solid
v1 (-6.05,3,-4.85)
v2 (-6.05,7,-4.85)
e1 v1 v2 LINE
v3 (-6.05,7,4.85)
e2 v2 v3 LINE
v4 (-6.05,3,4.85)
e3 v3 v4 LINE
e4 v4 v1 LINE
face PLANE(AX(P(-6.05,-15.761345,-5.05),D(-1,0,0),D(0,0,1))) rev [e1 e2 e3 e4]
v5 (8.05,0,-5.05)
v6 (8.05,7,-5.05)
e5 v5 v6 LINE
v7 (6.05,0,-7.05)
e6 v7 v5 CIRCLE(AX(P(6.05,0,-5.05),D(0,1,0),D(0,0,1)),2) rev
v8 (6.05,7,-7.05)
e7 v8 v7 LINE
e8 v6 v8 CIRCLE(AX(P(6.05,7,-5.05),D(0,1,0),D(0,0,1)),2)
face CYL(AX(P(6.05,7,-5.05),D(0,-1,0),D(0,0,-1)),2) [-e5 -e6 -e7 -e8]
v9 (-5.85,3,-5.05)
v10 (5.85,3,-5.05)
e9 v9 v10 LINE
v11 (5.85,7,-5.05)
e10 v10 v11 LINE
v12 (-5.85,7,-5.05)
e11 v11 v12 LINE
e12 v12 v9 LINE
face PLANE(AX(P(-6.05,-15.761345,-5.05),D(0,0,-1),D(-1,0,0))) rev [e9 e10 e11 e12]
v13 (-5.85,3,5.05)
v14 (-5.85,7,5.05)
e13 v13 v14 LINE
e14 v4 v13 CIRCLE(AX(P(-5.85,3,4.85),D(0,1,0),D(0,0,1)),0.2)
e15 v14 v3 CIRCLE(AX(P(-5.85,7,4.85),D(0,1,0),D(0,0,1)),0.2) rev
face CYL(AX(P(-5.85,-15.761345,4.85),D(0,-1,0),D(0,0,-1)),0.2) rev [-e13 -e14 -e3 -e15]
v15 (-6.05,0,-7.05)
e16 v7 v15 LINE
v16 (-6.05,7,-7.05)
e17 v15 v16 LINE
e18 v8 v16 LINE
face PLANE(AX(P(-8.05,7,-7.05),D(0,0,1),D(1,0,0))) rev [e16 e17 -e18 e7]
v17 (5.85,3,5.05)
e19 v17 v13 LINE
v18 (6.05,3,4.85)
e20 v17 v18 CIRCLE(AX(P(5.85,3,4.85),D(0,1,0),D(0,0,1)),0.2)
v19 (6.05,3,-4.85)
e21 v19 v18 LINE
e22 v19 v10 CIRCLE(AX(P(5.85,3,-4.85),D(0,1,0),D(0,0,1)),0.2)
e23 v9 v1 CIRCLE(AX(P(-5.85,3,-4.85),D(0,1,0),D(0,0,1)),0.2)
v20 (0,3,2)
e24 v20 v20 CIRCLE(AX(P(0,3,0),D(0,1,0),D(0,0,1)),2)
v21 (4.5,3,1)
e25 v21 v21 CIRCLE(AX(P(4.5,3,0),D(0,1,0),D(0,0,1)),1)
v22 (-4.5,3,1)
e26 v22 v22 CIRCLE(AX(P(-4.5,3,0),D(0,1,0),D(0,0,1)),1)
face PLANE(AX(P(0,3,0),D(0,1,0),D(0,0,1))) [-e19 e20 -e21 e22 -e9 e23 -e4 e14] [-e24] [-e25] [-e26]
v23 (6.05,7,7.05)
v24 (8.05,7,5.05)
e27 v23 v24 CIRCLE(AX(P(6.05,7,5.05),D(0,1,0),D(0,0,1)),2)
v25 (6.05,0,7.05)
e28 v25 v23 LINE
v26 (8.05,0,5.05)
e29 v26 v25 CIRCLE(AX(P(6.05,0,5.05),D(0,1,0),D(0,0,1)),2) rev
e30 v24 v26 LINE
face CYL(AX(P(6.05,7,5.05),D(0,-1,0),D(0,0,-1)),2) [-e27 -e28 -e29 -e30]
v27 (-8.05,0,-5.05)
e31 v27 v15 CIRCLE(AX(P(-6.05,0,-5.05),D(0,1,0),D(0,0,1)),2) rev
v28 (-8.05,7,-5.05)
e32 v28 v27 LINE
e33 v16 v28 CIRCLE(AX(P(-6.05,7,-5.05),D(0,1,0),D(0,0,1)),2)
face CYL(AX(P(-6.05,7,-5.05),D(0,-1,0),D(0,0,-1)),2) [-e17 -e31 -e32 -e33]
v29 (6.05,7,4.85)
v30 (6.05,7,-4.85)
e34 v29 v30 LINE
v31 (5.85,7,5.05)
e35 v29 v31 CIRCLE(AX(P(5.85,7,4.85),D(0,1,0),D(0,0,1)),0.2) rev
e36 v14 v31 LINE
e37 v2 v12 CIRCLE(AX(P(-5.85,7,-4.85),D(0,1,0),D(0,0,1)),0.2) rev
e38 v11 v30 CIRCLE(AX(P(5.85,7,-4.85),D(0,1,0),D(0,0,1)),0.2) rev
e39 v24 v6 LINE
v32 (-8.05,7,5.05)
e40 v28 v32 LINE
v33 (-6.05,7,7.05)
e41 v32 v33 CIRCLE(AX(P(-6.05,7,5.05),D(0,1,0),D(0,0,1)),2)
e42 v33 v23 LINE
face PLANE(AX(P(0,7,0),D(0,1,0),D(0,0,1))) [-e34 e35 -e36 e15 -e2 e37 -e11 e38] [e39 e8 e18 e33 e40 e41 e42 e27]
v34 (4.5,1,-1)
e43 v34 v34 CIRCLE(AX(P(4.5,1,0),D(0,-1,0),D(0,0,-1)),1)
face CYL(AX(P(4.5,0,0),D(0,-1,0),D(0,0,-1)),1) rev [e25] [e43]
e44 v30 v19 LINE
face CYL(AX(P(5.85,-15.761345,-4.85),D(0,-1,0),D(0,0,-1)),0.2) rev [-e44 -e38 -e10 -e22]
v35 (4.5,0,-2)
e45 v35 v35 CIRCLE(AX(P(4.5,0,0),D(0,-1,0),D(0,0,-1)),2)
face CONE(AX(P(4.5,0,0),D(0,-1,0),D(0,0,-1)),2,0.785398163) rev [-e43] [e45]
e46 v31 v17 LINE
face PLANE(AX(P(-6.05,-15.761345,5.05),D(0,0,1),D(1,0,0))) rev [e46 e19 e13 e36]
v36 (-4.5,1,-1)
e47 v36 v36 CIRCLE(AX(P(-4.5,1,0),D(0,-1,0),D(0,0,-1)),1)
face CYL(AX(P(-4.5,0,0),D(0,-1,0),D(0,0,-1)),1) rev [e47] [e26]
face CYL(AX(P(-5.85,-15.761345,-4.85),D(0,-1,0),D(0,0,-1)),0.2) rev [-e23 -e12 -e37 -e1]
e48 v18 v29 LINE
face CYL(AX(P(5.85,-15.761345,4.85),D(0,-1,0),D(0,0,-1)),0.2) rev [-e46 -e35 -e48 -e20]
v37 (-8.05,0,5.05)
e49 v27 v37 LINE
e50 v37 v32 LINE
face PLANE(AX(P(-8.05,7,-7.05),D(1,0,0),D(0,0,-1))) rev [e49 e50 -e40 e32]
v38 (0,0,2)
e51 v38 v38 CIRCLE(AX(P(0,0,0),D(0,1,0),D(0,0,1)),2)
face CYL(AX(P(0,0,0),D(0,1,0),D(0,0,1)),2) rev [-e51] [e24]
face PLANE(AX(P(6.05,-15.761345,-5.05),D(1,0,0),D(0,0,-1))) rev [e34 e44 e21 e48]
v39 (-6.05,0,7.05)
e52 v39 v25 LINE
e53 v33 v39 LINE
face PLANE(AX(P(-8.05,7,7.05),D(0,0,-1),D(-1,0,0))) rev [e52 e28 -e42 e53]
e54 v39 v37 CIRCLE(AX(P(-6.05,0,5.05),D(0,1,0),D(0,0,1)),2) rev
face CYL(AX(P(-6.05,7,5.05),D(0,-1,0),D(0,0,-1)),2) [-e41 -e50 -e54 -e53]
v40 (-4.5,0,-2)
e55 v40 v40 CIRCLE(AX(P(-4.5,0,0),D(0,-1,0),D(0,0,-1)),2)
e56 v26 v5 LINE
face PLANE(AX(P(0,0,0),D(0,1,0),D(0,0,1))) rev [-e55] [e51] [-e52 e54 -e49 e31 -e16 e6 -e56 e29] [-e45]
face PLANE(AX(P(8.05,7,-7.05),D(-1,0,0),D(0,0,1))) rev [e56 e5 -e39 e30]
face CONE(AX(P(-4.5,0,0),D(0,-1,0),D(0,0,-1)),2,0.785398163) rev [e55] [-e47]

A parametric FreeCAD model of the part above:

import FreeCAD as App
import Part
import Sketcher

V = App.Vector


def edges_at(feature, points):
    """Names of the edges that pass closest to the given points."""
    edges = feature.Shape.Edges
    near = lambda p: min(range(len(edges)), key=lambda i: edges[i].distToShape(Part.Vertex(*p))[0])
    return sorted({f"Edge{near(p) + 1}" for p in points})

doc = App.newDocument("Part")
params = doc.addObject("Spreadsheet::Sheet", "Params")
for row, (alias, value) in enumerate([
    ("sketch1_width", "16.1 mm"),
    ("sketch1_height", "14.1 mm"),
    ("pad1_length", "7 mm"),
    ("sketch2_width", "12.1 mm"),
    ("sketch2_height", "10.1 mm"),
    ("pocket1_length", "4 mm"),
    ("sketch3_diameter", "2 mm"),
    ("hole_diameter", "2 mm"),
    ("hole_depth", "3 mm"),
    ("hole_csink_diameter", "4 mm"),
    ("sketch4_diameter", "4 mm"),
    ("fillet_radius", "2 mm"),
    ("fillet2_radius", "0.2 mm"),
], start=1):
    params.set(f"A{row}", alias)
    params.set(f"B{row}", "=" + value)
    params.setAlias(f"B{row}", alias)

body = doc.addObject("PartDesign::Body", "Body")

sketch1 = body.newObject("Sketcher::SketchObject", "Sketch")
sketch1.AttachmentSupport = (doc.getObject("XZ_Plane"), [""])
sketch1.MapMode = "FlatFace"
sketch1.addGeometry([
    Part.LineSegment(V(-8.05, -7.05, 0), V(-8.05, 7.05, 0)),
    Part.LineSegment(V(-8.05, 7.05, 0), V(8.05, 7.05, 0)),
    Part.LineSegment(V(8.05, 7.05, 0), V(8.05, -7.05, 0)),
    Part.LineSegment(V(8.05, -7.05, 0), V(-8.05, -7.05, 0)),
], False)
sketch1.addConstraint([
    Sketcher.Constraint("Coincident", 0, 2, 1, 1),
    Sketcher.Constraint("Coincident", 1, 2, 2, 1),
    Sketcher.Constraint("Coincident", 2, 2, 3, 1),
    Sketcher.Constraint("Coincident", 3, 2, 0, 1),
    Sketcher.Constraint("Vertical", 0),
    Sketcher.Constraint("Horizontal", 1),
    Sketcher.Constraint("Vertical", 2),
    Sketcher.Constraint("Horizontal", 3),
    Sketcher.Constraint("Symmetric", 0, 2, 2, 2, -1, 1),
    Sketcher.Constraint("DistanceX", 1, 1, 1, 2, 16.1),
    Sketcher.Constraint("DistanceY", 0, 1, 0, 2, 14.1),
])
sketch1.setExpression("Constraints[9]", "Params.sketch1_width")
sketch1.setExpression("Constraints[10]", "Params.sketch1_height")
pad1 = body.newObject("PartDesign::Pad", "Pad")
pad1.Profile = sketch1
pad1.setExpression("Length", "Params.pad1_length")
pad1.Reversed = True

sketch2 = body.newObject("Sketcher::SketchObject", "Sketch001")
sketch2.AttachmentSupport = (doc.getObject("XZ_Plane"), [""])
sketch2.MapMode = "FlatFace"
sketch2.AttachmentOffset = App.Placement(V(0, 0, -7), App.Rotation())
sketch2.addGeometry([
    Part.LineSegment(V(-6.05, -5.05, 0), V(-6.05, 5.05, 0)),
    Part.LineSegment(V(-6.05, 5.05, 0), V(6.05, 5.05, 0)),
    Part.LineSegment(V(6.05, 5.05, 0), V(6.05, -5.05, 0)),
    Part.LineSegment(V(6.05, -5.05, 0), V(-6.05, -5.05, 0)),
], False)
sketch2.addConstraint([
    Sketcher.Constraint("Coincident", 0, 2, 1, 1),
    Sketcher.Constraint("Coincident", 1, 2, 2, 1),
    Sketcher.Constraint("Coincident", 2, 2, 3, 1),
    Sketcher.Constraint("Coincident", 3, 2, 0, 1),
    Sketcher.Constraint("Vertical", 0),
    Sketcher.Constraint("Horizontal", 1),
    Sketcher.Constraint("Vertical", 2),
    Sketcher.Constraint("Horizontal", 3),
    Sketcher.Constraint("Symmetric", 0, 2, 2, 2, -1, 1),
    Sketcher.Constraint("DistanceX", 1, 1, 1, 2, 12.1),
    Sketcher.Constraint("DistanceY", 0, 1, 0, 2, 10.1),
])
sketch2.setExpression("Constraints[9]", "Params.sketch2_width")
sketch2.setExpression("Constraints[10]", "Params.sketch2_height")
pocket1 = body.newObject("PartDesign::Pocket", "Pocket")
pocket1.Profile = sketch2
pocket1.setExpression("Length", "Params.pocket1_length")
pocket1.Reversed = True

sketch3 = body.newObject("Sketcher::SketchObject", "Sketch002")
sketch3.AttachmentSupport = (doc.getObject("XZ_Plane"), [""])
sketch3.MapMode = "FlatFace"
sketch3.addGeometry([
    Part.Circle(V(-4.5, 0, 0), V(0, 0, 1), 1),
    Part.Circle(V(4.5, 0, 0), V(0, 0, 1), 1),
], False)
sketch3.addConstraint([
    Sketcher.Constraint("Equal", 0, 1),
    Sketcher.Constraint("Symmetric", 0, 3, 1, 3, -1, 1),
    Sketcher.Constraint("PointOnObject", 0, 3, -1),
    Sketcher.Constraint("Diameter", 0, 2.0),
    Sketcher.Constraint("DistanceX", 0, 3, 1, 3, 9.0),
])
sketch3.setExpression("Constraints[3]", "Params.sketch3_diameter")
doc.recompute()
hole = body.newObject("PartDesign::Hole", "Hole")
hole.Profile = sketch3
hole.ThreadType = "None"
hole.setExpression("Diameter", "Params.hole_diameter")
hole.DepthType = "Dimension"
hole.setExpression("Depth", "Params.hole_depth")
hole.DrillPoint = "Flat"
hole.HoleCutType = "Countersink"
hole.setExpression("HoleCutDiameter", "Params.hole_csink_diameter")
hole.HoleCutCountersinkAngle = 90

sketch4 = body.newObject("Sketcher::SketchObject", "Sketch003")
sketch4.AttachmentSupport = (doc.getObject("XZ_Plane"), [""])
sketch4.MapMode = "FlatFace"
sketch4.AttachmentOffset = App.Placement(V(0, 0, -3), App.Rotation())
sketch4.addGeometry(Part.Circle(V(0, 0, 0), V(0, 0, 1), 2), False)
sketch4.addConstraint([
    Sketcher.Constraint("Coincident", 0, 3, -1, 1),
    Sketcher.Constraint("Diameter", 0, 4.0),
])
sketch4.setExpression("Constraints[1]", "Params.sketch4_diameter")
pocket2 = body.newObject("PartDesign::Pocket", "Pocket001")
pocket2.Profile = sketch4
pocket2.Type = "ThroughAll"
pocket2.Reversed = True
doc.recompute()

fillet = body.newObject("PartDesign::Fillet", "Fillet")
fillet.Base = (pocket2, edges_at(pocket2, [
    (-8.05, 3.5, -7.05),
    (8.05, 3.5, -7.05),
    (8.05, 3.5, 7.05),
    (-8.05, 3.5, 7.05),
]))
fillet.setExpression("Radius", "Params.fillet_radius")
doc.recompute()

fillet2 = body.newObject("PartDesign::Fillet", "Fillet001")
fillet2.Base = (fillet, edges_at(fillet, [
    (-6.05, 5, 5.05),
    (-6.05, 5, -5.05),
    (6.05, 5, -5.05),
    (6.05, 5, 5.05),
]))
fillet2.setExpression("Radius", "Params.fillet2_radius")

doc.recompute()
